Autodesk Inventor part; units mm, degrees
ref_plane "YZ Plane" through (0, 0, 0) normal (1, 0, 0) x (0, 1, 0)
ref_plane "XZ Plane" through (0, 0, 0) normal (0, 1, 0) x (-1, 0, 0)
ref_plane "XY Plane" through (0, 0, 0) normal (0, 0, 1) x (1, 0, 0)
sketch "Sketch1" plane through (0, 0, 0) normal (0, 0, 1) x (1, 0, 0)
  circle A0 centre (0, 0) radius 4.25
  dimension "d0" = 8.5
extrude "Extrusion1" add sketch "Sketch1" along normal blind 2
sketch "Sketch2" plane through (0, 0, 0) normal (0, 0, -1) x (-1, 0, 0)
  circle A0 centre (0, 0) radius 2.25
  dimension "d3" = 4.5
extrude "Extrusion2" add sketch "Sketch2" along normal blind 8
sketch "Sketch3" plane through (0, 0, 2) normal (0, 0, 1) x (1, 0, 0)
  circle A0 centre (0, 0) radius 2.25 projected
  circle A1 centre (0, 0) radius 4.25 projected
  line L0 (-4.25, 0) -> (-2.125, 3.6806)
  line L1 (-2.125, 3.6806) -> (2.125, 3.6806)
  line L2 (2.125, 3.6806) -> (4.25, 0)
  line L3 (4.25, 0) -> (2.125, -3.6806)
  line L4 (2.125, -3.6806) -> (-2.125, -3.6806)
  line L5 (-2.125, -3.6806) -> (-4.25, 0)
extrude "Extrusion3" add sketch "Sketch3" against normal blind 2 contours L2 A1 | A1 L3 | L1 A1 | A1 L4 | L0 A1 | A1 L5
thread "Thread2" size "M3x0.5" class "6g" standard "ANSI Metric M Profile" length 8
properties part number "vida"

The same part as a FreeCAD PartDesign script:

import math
import FreeCAD as App
import Part
import Sketcher

V = App.Vector
Q = App.Units.Quantity

doc = App.newDocument("Part")
body = doc.addObject("PartDesign::Body", "Body")

# Sketch on XY plane
sketch1 = body.newObject("Sketcher::SketchObject", "Sketch")
sketch1.AttachmentSupport = (doc.getObject("XY_Plane"), [""])
sketch1.MapMode = "FlatFace"
sketch1.addGeometry(Part.Circle(V(0, 0, 0), V(0, 0, 1), 4.2), False)
sketch1.addConstraint([
    Sketcher.Constraint("Coincident", 0, 3, -1, 1),
    Sketcher.Constraint("Diameter", 0, 8.5),
])
pad1 = body.newObject("PartDesign::Pad", "Pad")
pad1.Profile = sketch1
pad1.Length = 2

# Sketch on XY plane
sketch2 = body.newObject("Sketcher::SketchObject", "Sketch001")
sketch2.AttachmentSupport = (doc.getObject("XY_Plane"), [""])
sketch2.MapMode = "FlatFace"
sketch2.addGeometry(Part.Circle(V(0, 0, 0), V(0, 0, 1), 2.2), False)
sketch2.addConstraint([
    Sketcher.Constraint("Coincident", 0, 3, -1, 1),
    Sketcher.Constraint("Diameter", 0, 4.5),
])
pad2 = body.newObject("PartDesign::Pad", "Pad001")
pad2.Profile = sketch2
pad2.Length = 8
pad2.Reversed = True

# Sketch on XY plane
sketch3 = body.newObject("Sketcher::SketchObject", "Sketch002")
sketch3.AttachmentSupport = (doc.getObject("XY_Plane"), [""])
sketch3.MapMode = "FlatFace"
sketch3.AttachmentOffset = App.Placement(V(0, 0, 2), App.Rotation())
sketch3.addGeometry([
    Part.LineSegment(V(2.1, 3.7, 0), V(4.2, 0, 0)),  # 0
    Part.ArcOfCircle(Part.Circle(V(0, 0, 0), V(0, 0, 1), 4.2), math.radians(0), math.radians(60)),  # 1
    Part.ArcOfCircle(Part.Circle(V(0, 0, 0), V(0, 0, 1), 4.2), math.radians(-60), math.radians(0)),  # 2
    Part.LineSegment(V(4.2, 0, 0), V(2.1, -3.7, 0)),  # 3
    Part.LineSegment(V(-2.1, 3.7, 0), V(2.1, 3.7, 0)),  # 4
    Part.ArcOfCircle(Part.Circle(V(0, 0, 0), V(0, 0, 1), 4.2), math.radians(60), math.radians(120)),  # 5
    Part.ArcOfCircle(Part.Circle(V(0, 0, 0), V(0, 0, 1), 4.2), math.radians(-120), math.radians(-60)),  # 6
    Part.LineSegment(V(-2.1, -3.7, 0), V(2.1, -3.7, 0)),  # 7
    Part.LineSegment(V(-4.2, 0, 0), V(-2.1, 3.7, 0)),  # 8
    Part.ArcOfCircle(Part.Circle(V(0, 0, 0), V(0, 0, 1), 4.2), math.radians(120), math.radians(180)),  # 9
    Part.ArcOfCircle(Part.Circle(V(0, 0, 0), V(0, 0, 1), 4.2), math.radians(180), math.radians(240)),  # 10
    Part.LineSegment(V(-4.2, 0, 0), V(-2.1, -3.7, 0)),  # 11
], False)
sketch3.addConstraint([
    Sketcher.Constraint("Coincident", 0, 1, 1, 2),
    Sketcher.Constraint("Coincident", 1, 1, 0, 2),
    Sketcher.Constraint("Coincident", 2, 1, 3, 2),
    Sketcher.Constraint("Coincident", 3, 1, 2, 2),
    Sketcher.Constraint("Coincident", 4, 1, 5, 2),
    Sketcher.Constraint("Coincident", 5, 1, 4, 2),
    Sketcher.Constraint("Coincident", 6, 1, 7, 1),
    Sketcher.Constraint("Coincident", 7, 2, 6, 2),
    Sketcher.Constraint("Coincident", 8, 1, 9, 2),
    Sketcher.Constraint("Coincident", 9, 1, 8, 2),
    Sketcher.Constraint("Coincident", 10, 1, 11, 1),
    Sketcher.Constraint("Coincident", 11, 2, 10, 2),
    Sketcher.Constraint("Horizontal", 4),
    Sketcher.Constraint("Horizontal", 7),
    Sketcher.Constraint("Coincident", 1, 3, -1, 1),
    Sketcher.Constraint("Coincident", 2, 3, -1, 1),
    Sketcher.Constraint("Coincident", 5, 3, -1, 1),
    Sketcher.Constraint("Coincident", 6, 3, -1, 1),
    Sketcher.Constraint("Coincident", 9, 3, -1, 1),
    Sketcher.Constraint("Coincident", 10, 3, -1, 1),
    Sketcher.Constraint("Coincident", 3, 1, 1, 1),
    Sketcher.Constraint("Coincident", 5, 1, 0, 1),
    Sketcher.Constraint("Coincident", 7, 2, 2, 1),
    Sketcher.Constraint("Coincident", 9, 1, 4, 1),
    Sketcher.Constraint("Coincident", 10, 1, 8, 1),
    Sketcher.Constraint("PointOnObject", 1, 1, -1),
    Sketcher.Constraint("PointOnObject", 8, 1, -1),
    Sketcher.Constraint("Parallel", 3, 8),
    Sketcher.Constraint("Parallel", 0, 11),
    Sketcher.Constraint("Angle", 0, Q("-60 deg")),
    Sketcher.Constraint("Radius", 1, 4.25),
])
pad3 = body.newObject("PartDesign::Pad", "Pad002")
pad3.Profile = sketch3
pad3.Length = 2
pad3.Reversed = True

doc.recompute()
